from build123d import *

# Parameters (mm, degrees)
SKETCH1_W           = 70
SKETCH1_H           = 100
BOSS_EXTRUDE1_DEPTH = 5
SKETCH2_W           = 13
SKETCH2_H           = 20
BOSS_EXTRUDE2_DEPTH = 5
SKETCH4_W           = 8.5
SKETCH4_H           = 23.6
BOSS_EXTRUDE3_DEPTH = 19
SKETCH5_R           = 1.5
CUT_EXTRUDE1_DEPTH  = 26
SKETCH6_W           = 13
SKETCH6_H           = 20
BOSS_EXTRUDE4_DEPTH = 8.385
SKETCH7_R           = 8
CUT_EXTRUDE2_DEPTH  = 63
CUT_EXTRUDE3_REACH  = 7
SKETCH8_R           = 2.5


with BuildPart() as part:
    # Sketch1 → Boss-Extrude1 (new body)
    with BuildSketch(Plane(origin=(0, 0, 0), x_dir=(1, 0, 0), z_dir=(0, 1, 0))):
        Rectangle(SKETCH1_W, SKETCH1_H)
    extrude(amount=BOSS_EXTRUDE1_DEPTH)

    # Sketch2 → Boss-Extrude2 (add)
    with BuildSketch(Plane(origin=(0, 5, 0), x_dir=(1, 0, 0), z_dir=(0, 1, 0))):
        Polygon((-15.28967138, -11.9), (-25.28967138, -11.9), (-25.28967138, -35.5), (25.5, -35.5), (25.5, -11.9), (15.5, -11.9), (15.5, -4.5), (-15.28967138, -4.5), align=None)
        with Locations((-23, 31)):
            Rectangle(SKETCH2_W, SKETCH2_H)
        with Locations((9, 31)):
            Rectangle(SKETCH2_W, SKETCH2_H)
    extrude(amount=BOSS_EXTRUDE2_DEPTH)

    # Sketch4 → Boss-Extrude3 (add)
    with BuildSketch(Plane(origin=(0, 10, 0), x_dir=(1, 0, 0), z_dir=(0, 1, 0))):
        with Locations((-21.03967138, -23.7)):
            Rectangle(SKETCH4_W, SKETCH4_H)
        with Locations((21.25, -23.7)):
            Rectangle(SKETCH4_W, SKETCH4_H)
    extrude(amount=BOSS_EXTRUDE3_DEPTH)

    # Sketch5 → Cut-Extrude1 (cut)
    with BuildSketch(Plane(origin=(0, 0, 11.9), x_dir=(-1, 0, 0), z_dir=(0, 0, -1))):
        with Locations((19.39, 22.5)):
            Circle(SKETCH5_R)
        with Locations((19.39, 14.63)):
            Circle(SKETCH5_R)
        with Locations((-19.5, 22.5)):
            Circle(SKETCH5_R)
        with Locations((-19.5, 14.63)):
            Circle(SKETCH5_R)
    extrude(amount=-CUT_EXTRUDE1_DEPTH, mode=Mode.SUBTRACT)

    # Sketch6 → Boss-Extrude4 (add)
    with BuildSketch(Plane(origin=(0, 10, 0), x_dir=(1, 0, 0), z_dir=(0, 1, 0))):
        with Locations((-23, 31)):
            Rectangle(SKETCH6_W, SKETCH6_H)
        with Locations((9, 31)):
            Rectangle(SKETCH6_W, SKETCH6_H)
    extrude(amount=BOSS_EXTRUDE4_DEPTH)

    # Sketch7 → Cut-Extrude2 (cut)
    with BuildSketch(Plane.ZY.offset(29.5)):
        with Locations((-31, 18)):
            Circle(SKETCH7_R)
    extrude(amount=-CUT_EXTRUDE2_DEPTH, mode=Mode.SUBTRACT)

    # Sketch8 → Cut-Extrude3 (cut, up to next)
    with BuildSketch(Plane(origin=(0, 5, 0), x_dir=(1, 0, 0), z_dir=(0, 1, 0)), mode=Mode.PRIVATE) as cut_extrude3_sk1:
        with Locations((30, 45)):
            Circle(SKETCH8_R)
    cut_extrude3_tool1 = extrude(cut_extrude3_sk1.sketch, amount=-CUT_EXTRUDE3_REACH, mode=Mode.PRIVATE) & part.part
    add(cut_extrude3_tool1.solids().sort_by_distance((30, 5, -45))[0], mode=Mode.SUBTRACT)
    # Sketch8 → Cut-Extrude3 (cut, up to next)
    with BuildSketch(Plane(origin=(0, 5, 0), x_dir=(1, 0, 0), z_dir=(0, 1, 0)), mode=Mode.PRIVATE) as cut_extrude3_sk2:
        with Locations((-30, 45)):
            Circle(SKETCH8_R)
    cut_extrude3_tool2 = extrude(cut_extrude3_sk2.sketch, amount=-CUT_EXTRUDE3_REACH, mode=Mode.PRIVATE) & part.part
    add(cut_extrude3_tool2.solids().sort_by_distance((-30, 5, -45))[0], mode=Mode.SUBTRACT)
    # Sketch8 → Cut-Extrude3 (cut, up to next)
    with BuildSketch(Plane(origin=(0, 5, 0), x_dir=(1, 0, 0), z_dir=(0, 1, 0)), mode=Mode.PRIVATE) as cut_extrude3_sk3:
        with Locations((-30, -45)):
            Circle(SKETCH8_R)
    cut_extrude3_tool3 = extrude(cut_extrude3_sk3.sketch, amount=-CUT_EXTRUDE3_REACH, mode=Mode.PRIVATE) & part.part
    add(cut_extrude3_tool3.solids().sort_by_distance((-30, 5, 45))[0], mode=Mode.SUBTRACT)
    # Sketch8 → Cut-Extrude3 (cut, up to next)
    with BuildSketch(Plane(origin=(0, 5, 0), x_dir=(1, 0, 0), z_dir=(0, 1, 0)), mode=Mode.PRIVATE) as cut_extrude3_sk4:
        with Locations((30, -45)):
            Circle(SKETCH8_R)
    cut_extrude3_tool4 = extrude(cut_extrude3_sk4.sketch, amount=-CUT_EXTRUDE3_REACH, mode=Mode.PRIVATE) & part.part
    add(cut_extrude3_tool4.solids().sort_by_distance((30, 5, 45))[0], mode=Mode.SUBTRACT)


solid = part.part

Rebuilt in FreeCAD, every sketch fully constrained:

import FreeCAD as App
import Part
import Sketcher

doc = App.newDocument("Part")
body = doc.addObject("PartDesign::Body", "Body")

sketch1 = body.newObject("Sketcher::SketchObject", "Sketch")
sketch1.AttachmentSupport = (doc.getObject("XZ_Plane"), [""])
sketch1.MapMode = "FlatFace"
sketch1.addGeometry(Part.LineSegment(App.Vector(-35, -50, 0), App.Vector(-35, 50, 0)), False)
sketch1.addGeometry(Part.LineSegment(App.Vector(-35, 50, 0), App.Vector(35, 50, 0)), False)
sketch1.addGeometry(Part.LineSegment(App.Vector(35, 50, 0), App.Vector(35, -50, 0)), False)
sketch1.addGeometry(Part.LineSegment(App.Vector(35, -50, 0), App.Vector(-35, -50, 0)), False)
sketch1.addConstraint(Sketcher.Constraint("Coincident", 0, 2, 1, 1))
sketch1.addConstraint(Sketcher.Constraint("Coincident", 1, 2, 2, 1))
sketch1.addConstraint(Sketcher.Constraint("Coincident", 2, 2, 3, 1))
sketch1.addConstraint(Sketcher.Constraint("Coincident", 3, 2, 0, 1))
sketch1.addConstraint(Sketcher.Constraint("Vertical", 0))
sketch1.addConstraint(Sketcher.Constraint("Horizontal", 1))
sketch1.addConstraint(Sketcher.Constraint("Vertical", 2))
sketch1.addConstraint(Sketcher.Constraint("Horizontal", 3))
sketch1.addConstraint(Sketcher.Constraint("Symmetric", 0, 2, 2, 2, -1, 1))
sketch1.addConstraint(Sketcher.Constraint("DistanceX", 1, 1, 1, 2, 70.0))
sketch1.addConstraint(Sketcher.Constraint("DistanceY", 0, 1, 0, 2, 100.0))
pad1 = body.newObject("PartDesign::Pad", "Pad")
pad1.Profile = sketch1
pad1.Length = 5
pad1.Reversed = True

sketch2 = body.newObject("Sketcher::SketchObject", "Sketch001")
sketch2.AttachmentSupport = (doc.getObject("XZ_Plane"), [""])
sketch2.MapMode = "FlatFace"
sketch2.AttachmentOffset = App.Placement(App.Vector(0, 0, -5), App.Rotation())
sketch2.addGeometry(Part.LineSegment(App.Vector(-15.289671, 11.9, 0), App.Vector(-25.289671, 11.9, 0)), False)
sketch2.addGeometry(Part.LineSegment(App.Vector(-25.289671, 11.9, 0), App.Vector(-25.289671, 35.5, 0)), False)
sketch2.addGeometry(Part.LineSegment(App.Vector(-25.289671, 35.5, 0), App.Vector(25.5, 35.5, 0)), False)
sketch2.addGeometry(Part.LineSegment(App.Vector(25.5, 35.5, 0), App.Vector(25.5, 11.9, 0)), False)
sketch2.addGeometry(Part.LineSegment(App.Vector(25.5, 11.9, 0), App.Vector(15.5, 11.9, 0)), False)
sketch2.addGeometry(Part.LineSegment(App.Vector(15.5, 11.9, 0), App.Vector(15.5, 4.5, 0)), False)
sketch2.addGeometry(Part.LineSegment(App.Vector(15.5, 4.5, 0), App.Vector(-15.289671, 4.5, 0)), False)
sketch2.addGeometry(Part.LineSegment(App.Vector(-15.289671, 4.5, 0), App.Vector(-15.289671, 11.9, 0)), False)
sketch2.addGeometry(Part.LineSegment(App.Vector(-29.5, -41, 0), App.Vector(-29.5, -21, 0)), False)
sketch2.addGeometry(Part.LineSegment(App.Vector(-29.5, -21, 0), App.Vector(-16.5, -21, 0)), False)
sketch2.addGeometry(Part.LineSegment(App.Vector(-16.5, -21, 0), App.Vector(-16.5, -41, 0)), False)
sketch2.addGeometry(Part.LineSegment(App.Vector(-16.5, -41, 0), App.Vector(-29.5, -41, 0)), False)
sketch2.addGeometry(Part.LineSegment(App.Vector(2.5, -41, 0), App.Vector(2.5, -21, 0)), False)
sketch2.addGeometry(Part.LineSegment(App.Vector(2.5, -21, 0), App.Vector(15.5, -21, 0)), False)
sketch2.addGeometry(Part.LineSegment(App.Vector(15.5, -21, 0), App.Vector(15.5, -41, 0)), False)
sketch2.addGeometry(Part.LineSegment(App.Vector(15.5, -41, 0), App.Vector(2.5, -41, 0)), False)
sketch2.addConstraint(Sketcher.Constraint("Coincident", 0, 2, 1, 1))
sketch2.addConstraint(Sketcher.Constraint("Coincident", 1, 2, 2, 1))
sketch2.addConstraint(Sketcher.Constraint("Coincident", 2, 2, 3, 1))
sketch2.addConstraint(Sketcher.Constraint("Coincident", 3, 2, 4, 1))
sketch2.addConstraint(Sketcher.Constraint("Coincident", 4, 2, 5, 1))
sketch2.addConstraint(Sketcher.Constraint("Coincident", 5, 2, 6, 1))
sketch2.addConstraint(Sketcher.Constraint("Coincident", 6, 2, 7, 1))
sketch2.addConstraint(Sketcher.Constraint("Coincident", 7, 2, 0, 1))
sketch2.addConstraint(Sketcher.Constraint("Coincident", 8, 2, 9, 1))
sketch2.addConstraint(Sketcher.Constraint("Coincident", 9, 2, 10, 1))
sketch2.addConstraint(Sketcher.Constraint("Coincident", 10, 2, 11, 1))
sketch2.addConstraint(Sketcher.Constraint("Coincident", 11, 2, 8, 1))
sketch2.addConstraint(Sketcher.Constraint("Coincident", 12, 2, 13, 1))
sketch2.addConstraint(Sketcher.Constraint("Coincident", 13, 2, 14, 1))
sketch2.addConstraint(Sketcher.Constraint("Coincident", 14, 2, 15, 1))
sketch2.addConstraint(Sketcher.Constraint("Coincident", 15, 2, 12, 1))
sketch2.addConstraint(Sketcher.Constraint("Horizontal", 0))
sketch2.addConstraint(Sketcher.Constraint("Vertical", 1))
sketch2.addConstraint(Sketcher.Constraint("Horizontal", 2))
sketch2.addConstraint(Sketcher.Constraint("Vertical", 3))
sketch2.addConstraint(Sketcher.Constraint("Horizontal", 4))
sketch2.addConstraint(Sketcher.Constraint("Vertical", 5))
sketch2.addConstraint(Sketcher.Constraint("Horizontal", 6))
sketch2.addConstraint(Sketcher.Constraint("Vertical", 7))
sketch2.addConstraint(Sketcher.Constraint("Vertical", 8))
sketch2.addConstraint(Sketcher.Constraint("Horizontal", 9))
sketch2.addConstraint(Sketcher.Constraint("Vertical", 10))
sketch2.addConstraint(Sketcher.Constraint("Horizontal", 11))
sketch2.addConstraint(Sketcher.Constraint("Vertical", 12))
sketch2.addConstraint(Sketcher.Constraint("Horizontal", 13))
sketch2.addConstraint(Sketcher.Constraint("Vertical", 14))
sketch2.addConstraint(Sketcher.Constraint("Horizontal", 15))
sketch2.addConstraint(Sketcher.Constraint("Horizontal", 0, 2, 3, 2))
sketch2.addConstraint(Sketcher.Constraint("Horizontal", 9, 2, 12, 2))
sketch2.addConstraint(Sketcher.Constraint("Horizontal", 11, 2, 14, 2))
sketch2.addConstraint(Sketcher.Constraint("Vertical", 5, 2, 13, 2))
sketch2.addConstraint(Sketcher.Constraint("Equal", 0, 4))
sketch2.addConstraint(Sketcher.Constraint("Equal", 11, 13))
sketch2.addConstraint(Sketcher.Constraint("DistanceX", 0, 2, 0, 1, 10.0))
sketch2.addConstraint(Sketcher.Constraint("DistanceX", 9, 1, 9, 2, 13.0))
sketch2.addConstraint(Sketcher.Constraint("DistanceY", 8, 1, 8, 2, 20.0))
sketch2.addConstraint(Sketcher.Constraint("DistanceY", 1, 1, 1, 2, 23.6))
sketch2.addConstraint(Sketcher.Constraint("DistanceY", 5, 2, 5, 1, 7.4))
sketch2.addConstraint(Sketcher.Constraint("DistanceY", 8, 2, -1, 1, 21.0))
sketch2.addConstraint(Sketcher.Constraint("DistanceX", 8, 2, 5, 2, 45.0))
sketch2.addConstraint(Sketcher.Constraint("DistanceY", -1, 1, 0, 2, 11.9))
sketch2.addConstraint(Sketcher.Constraint("DistanceX", -1, 1, 2, 2, 25.5))
sketch2.addConstraint(Sketcher.Constraint("DistanceX", 2, 1, 2, 2, 50.789671))
pad2 = body.newObject("PartDesign::Pad", "Pad001")
pad2.Profile = sketch2
pad2.Length = 5
pad2.Reversed = True

sketch3 = body.newObject("Sketcher::SketchObject", "Sketch002")
sketch3.AttachmentSupport = (doc.getObject("XZ_Plane"), [""])
sketch3.MapMode = "FlatFace"
sketch3.AttachmentOffset = App.Placement(App.Vector(0, 0, -10), App.Rotation())
sketch3.addGeometry(Part.LineSegment(App.Vector(-25.289671, 11.9, 0), App.Vector(-25.289671, 35.5, 0)), False)
sketch3.addGeometry(Part.LineSegment(App.Vector(-25.289671, 35.5, 0), App.Vector(-16.789671, 35.5, 0)), False)
sketch3.addGeometry(Part.LineSegment(App.Vector(-16.789671, 35.5, 0), App.Vector(-16.789671, 11.9, 0)), False)
sketch3.addGeometry(Part.LineSegment(App.Vector(-16.789671, 11.9, 0), App.Vector(-25.289671, 11.9, 0)), False)
sketch3.addGeometry(Part.LineSegment(App.Vector(17, 11.9, 0), App.Vector(17, 35.5, 0)), False)
sketch3.addGeometry(Part.LineSegment(App.Vector(17, 35.5, 0), App.Vector(25.5, 35.5, 0)), False)
sketch3.addGeometry(Part.LineSegment(App.Vector(25.5, 35.5, 0), App.Vector(25.5, 11.9, 0)), False)
sketch3.addGeometry(Part.LineSegment(App.Vector(25.5, 11.9, 0), App.Vector(17, 11.9, 0)), False)
sketch3.addConstraint(Sketcher.Constraint("Coincident", 0, 2, 1, 1))
sketch3.addConstraint(Sketcher.Constraint("Coincident", 1, 2, 2, 1))
sketch3.addConstraint(Sketcher.Constraint("Coincident", 2, 2, 3, 1))
sketch3.addConstraint(Sketcher.Constraint("Coincident", 3, 2, 0, 1))
sketch3.addConstraint(Sketcher.Constraint("Coincident", 4, 2, 5, 1))
sketch3.addConstraint(Sketcher.Constraint("Coincident", 5, 2, 6, 1))
sketch3.addConstraint(Sketcher.Constraint("Coincident", 6, 2, 7, 1))
sketch3.addConstraint(Sketcher.Constraint("Coincident", 7, 2, 4, 1))
sketch3.addConstraint(Sketcher.Constraint("Vertical", 0))
sketch3.addConstraint(Sketcher.Constraint("Horizontal", 1))
sketch3.addConstraint(Sketcher.Constraint("Vertical", 2))
sketch3.addConstraint(Sketcher.Constraint("Horizontal", 3))
sketch3.addConstraint(Sketcher.Constraint("Vertical", 4))
sketch3.addConstraint(Sketcher.Constraint("Horizontal", 5))
sketch3.addConstraint(Sketcher.Constraint("Vertical", 6))
sketch3.addConstraint(Sketcher.Constraint("Horizontal", 7))
sketch3.addConstraint(Sketcher.Constraint("Horizontal", 1, 2, 4, 2))
sketch3.addConstraint(Sketcher.Constraint("Horizontal", 3, 2, 6, 2))
sketch3.addConstraint(Sketcher.Constraint("Equal", 3, 5))
sketch3.addConstraint(Sketcher.Constraint("DistanceX", 1, 1, 1, 2, 8.5))
sketch3.addConstraint(Sketcher.Constraint("DistanceY", 0, 1, 0, 2, 23.6))
sketch3.addConstraint(Sketcher.Constraint("DistanceX", -1, 1, 4, 2, 17.0))
sketch3.addConstraint(Sketcher.Constraint("DistanceY", -1, 1, 0, 2, 35.5))
sketch3.addConstraint(Sketcher.Constraint("DistanceX", 0, 2, -1, 1, 25.289671))
pad3 = body.newObject("PartDesign::Pad", "Pad002")
pad3.Profile = sketch3
pad3.Length = 19
pad3.Reversed = True

sketch4 = body.newObject("Sketcher::SketchObject", "Sketch003")
sketch4.AttachmentSupport = (doc.getObject("XY_Plane"), [""])
sketch4.MapMode = "FlatFace"
sketch4.AttachmentOffset = App.Placement(App.Vector(0, 0, 11.9), App.Rotation())
sketch4.addGeometry(Part.Circle(App.Vector(-19.39, 22.5, 0), App.Vector(0, 0, 1), 1.5), False)
sketch4.addGeometry(Part.Circle(App.Vector(-19.39, 14.63, 0), App.Vector(0, 0, 1), 1.5), False)
sketch4.addGeometry(Part.Circle(App.Vector(19.5, 22.5, 0), App.Vector(0, 0, 1), 1.5), False)
sketch4.addGeometry(Part.Circle(App.Vector(19.5, 14.63, 0), App.Vector(0, 0, 1), 1.5), False)
sketch4.addConstraint(Sketcher.Constraint("Equal", 0, 1))
sketch4.addConstraint(Sketcher.Constraint("Equal", 1, 2))
sketch4.addConstraint(Sketcher.Constraint("Equal", 2, 3))
sketch4.addConstraint(Sketcher.Constraint("Horizontal", 0, 3, 2, 3))
sketch4.addConstraint(Sketcher.Constraint("Horizontal", 1, 3, 3, 3))
sketch4.addConstraint(Sketcher.Constraint("Vertical", 0, 3, 1, 3))
sketch4.addConstraint(Sketcher.Constraint("Vertical", 2, 3, 3, 3))
sketch4.addConstraint(Sketcher.Constraint("Diameter", 0, 3.0))
sketch4.addConstraint(Sketcher.Constraint("DistanceY", -1, 1, 0, 3, 22.5))
sketch4.addConstraint(Sketcher.Constraint("DistanceX", -1, 1, 2, 3, 19.5))
sketch4.addConstraint(Sketcher.Constraint("DistanceX", 0, 3, -1, 1, 19.39))
sketch4.addConstraint(Sketcher.Constraint("DistanceY", -1, 1, 1, 3, 14.63))
pocket1 = body.newObject("PartDesign::Pocket", "Pocket")
pocket1.Profile = sketch4
pocket1.Length = 26
pocket1.Reversed = True

sketch5 = body.newObject("Sketcher::SketchObject", "Sketch004")
sketch5.AttachmentSupport = (doc.getObject("XZ_Plane"), [""])
sketch5.MapMode = "FlatFace"
sketch5.AttachmentOffset = App.Placement(App.Vector(0, 0, -10), App.Rotation())
sketch5.addGeometry(Part.LineSegment(App.Vector(-29.5, -41, 0), App.Vector(-29.5, -21, 0)), False)
sketch5.addGeometry(Part.LineSegment(App.Vector(-29.5, -21, 0), App.Vector(-16.5, -21, 0)), False)
sketch5.addGeometry(Part.LineSegment(App.Vector(-16.5, -21, 0), App.Vector(-16.5, -41, 0)), False)
sketch5.addGeometry(Part.LineSegment(App.Vector(-16.5, -41, 0), App.Vector(-29.5, -41, 0)), False)
sketch5.addGeometry(Part.LineSegment(App.Vector(2.5, -41, 0), App.Vector(2.5, -21, 0)), False)
sketch5.addGeometry(Part.LineSegment(App.Vector(2.5, -21, 0), App.Vector(15.5, -21, 0)), False)
sketch5.addGeometry(Part.LineSegment(App.Vector(15.5, -21, 0), App.Vector(15.5, -41, 0)), False)
sketch5.addGeometry(Part.LineSegment(App.Vector(15.5, -41, 0), App.Vector(2.5, -41, 0)), False)
sketch5.addConstraint(Sketcher.Constraint("Coincident", 0, 2, 1, 1))
sketch5.addConstraint(Sketcher.Constraint("Coincident", 1, 2, 2, 1))
sketch5.addConstraint(Sketcher.Constraint("Coincident", 2, 2, 3, 1))
sketch5.addConstraint(Sketcher.Constraint("Coincident", 3, 2, 0, 1))
sketch5.addConstraint(Sketcher.Constraint("Coincident", 4, 2, 5, 1))
sketch5.addConstraint(Sketcher.Constraint("Coincident", 5, 2, 6, 1))
sketch5.addConstraint(Sketcher.Constraint("Coincident", 6, 2, 7, 1))
sketch5.addConstraint(Sketcher.Constraint("Coincident", 7, 2, 4, 1))
sketch5.addConstraint(Sketcher.Constraint("Vertical", 0))
sketch5.addConstraint(Sketcher.Constraint("Horizontal", 1))
sketch5.addConstraint(Sketcher.Constraint("Vertical", 2))
sketch5.addConstraint(Sketcher.Constraint("Horizontal", 3))
sketch5.addConstraint(Sketcher.Constraint("Vertical", 4))
sketch5.addConstraint(Sketcher.Constraint("Horizontal", 5))
sketch5.addConstraint(Sketcher.Constraint("Vertical", 6))
sketch5.addConstraint(Sketcher.Constraint("Horizontal", 7))
sketch5.addConstraint(Sketcher.Constraint("Horizontal", 1, 2, 4, 2))
sketch5.addConstraint(Sketcher.Constraint("Horizontal", 3, 2, 6, 2))
sketch5.addConstraint(Sketcher.Constraint("Equal", 3, 5))
sketch5.addConstraint(Sketcher.Constraint("DistanceX", 1, 1, 1, 2, 13.0))
sketch5.addConstraint(Sketcher.Constraint("DistanceY", 0, 1, 0, 2, 20.0))
sketch5.addConstraint(Sketcher.Constraint("DistanceY", 0, 2, -1, 1, 21.0))
sketch5.addConstraint(Sketcher.Constraint("DistanceX", 1, 2, 4, 2, 19.0))
sketch5.addConstraint(Sketcher.Constraint("DistanceX", 0, 2, -1, 1, 29.5))
pad4 = body.newObject("PartDesign::Pad", "Pad003")
pad4.Profile = sketch5
pad4.Length = 8.385
pad4.Reversed = True

sketch6 = body.newObject("Sketcher::SketchObject", "Sketch005")
sketch6.AttachmentSupport = (doc.getObject("YZ_Plane"), [""])
sketch6.MapMode = "FlatFace"
sketch6.AttachmentOffset = App.Placement(App.Vector(0, 0, -29.5), App.Rotation())
sketch6.addGeometry(Part.Circle(App.Vector(18, -31, 0), App.Vector(0, 0, 1), 8), False)
sketch6.addConstraint(Sketcher.Constraint("Diameter", 0, 16.0))
sketch6.addConstraint(Sketcher.Constraint("DistanceX", -1, 1, 0, 3, 18.0))
sketch6.addConstraint(Sketcher.Constraint("DistanceY", 0, 3, -1, 1, 31.0))
pocket2 = body.newObject("PartDesign::Pocket", "Pocket001")
pocket2.Profile = sketch6
pocket2.Length = 63
pocket2.Reversed = True

sketch7 = body.newObject("Sketcher::SketchObject", "Sketch006")
sketch7.AttachmentSupport = (doc.getObject("XZ_Plane"), [""])
sketch7.MapMode = "FlatFace"
sketch7.AttachmentOffset = App.Placement(App.Vector(0, 0, -5), App.Rotation())
sketch7.addGeometry(Part.Circle(App.Vector(30, -45, 0), App.Vector(0, 0, 1), 2.5), False)
sketch7.addConstraint(Sketcher.Constraint("Diameter", 0, 5.0))
sketch7.addConstraint(Sketcher.Constraint("DistanceX", -1, 1, 0, 3, 30.0))
sketch7.addConstraint(Sketcher.Constraint("DistanceY", 0, 3, -1, 1, 45.0))
pocket3 = body.newObject("PartDesign::Pocket", "Pocket002")
pocket3.Profile = sketch7
pocket3.Type = "UpToFirst"
pocket3.Reversed = True

sketch8 = body.newObject("Sketcher::SketchObject", "Sketch007")
sketch8.AttachmentSupport = (doc.getObject("XZ_Plane"), [""])
sketch8.MapMode = "FlatFace"
sketch8.AttachmentOffset = App.Placement(App.Vector(0, 0, -5), App.Rotation())
sketch8.addGeometry(Part.Circle(App.Vector(-30, -45, 0), App.Vector(0, 0, 1), 2.5), False)
sketch8.addConstraint(Sketcher.Constraint("Diameter", 0, 5.0))
sketch8.addConstraint(Sketcher.Constraint("DistanceX", 0, 3, -1, 1, 30.0))
sketch8.addConstraint(Sketcher.Constraint("DistanceY", 0, 3, -1, 1, 45.0))
pocket4 = body.newObject("PartDesign::Pocket", "Pocket003")
pocket4.Profile = sketch8
pocket4.Type = "UpToFirst"
pocket4.Reversed = True

sketch9 = body.newObject("Sketcher::SketchObject", "Sketch008")
sketch9.AttachmentSupport = (doc.getObject("XZ_Plane"), [""])
sketch9.MapMode = "FlatFace"
sketch9.AttachmentOffset = App.Placement(App.Vector(0, 0, -5), App.Rotation())
sketch9.addGeometry(Part.Circle(App.Vector(-30, 45, 0), App.Vector(0, 0, 1), 2.5), False)
sketch9.addConstraint(Sketcher.Constraint("Diameter", 0, 5.0))
sketch9.addConstraint(Sketcher.Constraint("DistanceX", 0, 3, -1, 1, 30.0))
sketch9.addConstraint(Sketcher.Constraint("DistanceY", -1, 1, 0, 3, 45.0))
pocket5 = body.newObject("PartDesign::Pocket", "Pocket004")
pocket5.Profile = sketch9
pocket5.Type = "UpToFirst"
pocket5.Reversed = True

sketch10 = body.newObject("Sketcher::SketchObject", "Sketch009")
sketch10.AttachmentSupport = (doc.getObject("XZ_Plane"), [""])
sketch10.MapMode = "FlatFace"
sketch10.AttachmentOffset = App.Placement(App.Vector(0, 0, -5), App.Rotation())
sketch10.addGeometry(Part.Circle(App.Vector(30, 45, 0), App.Vector(0, 0, 1), 2.5), False)
sketch10.addConstraint(Sketcher.Constraint("Diameter", 0, 5.0))
sketch10.addConstraint(Sketcher.Constraint("DistanceX", -1, 1, 0, 3, 30.0))
sketch10.addConstraint(Sketcher.Constraint("DistanceY", -1, 1, 0, 3, 45.0))
pocket6 = body.newObject("PartDesign::Pocket", "Pocket005")
pocket6.Profile = sketch10
pocket6.Type = "UpToFirst"
pocket6.Reversed = True

doc.recompute()
